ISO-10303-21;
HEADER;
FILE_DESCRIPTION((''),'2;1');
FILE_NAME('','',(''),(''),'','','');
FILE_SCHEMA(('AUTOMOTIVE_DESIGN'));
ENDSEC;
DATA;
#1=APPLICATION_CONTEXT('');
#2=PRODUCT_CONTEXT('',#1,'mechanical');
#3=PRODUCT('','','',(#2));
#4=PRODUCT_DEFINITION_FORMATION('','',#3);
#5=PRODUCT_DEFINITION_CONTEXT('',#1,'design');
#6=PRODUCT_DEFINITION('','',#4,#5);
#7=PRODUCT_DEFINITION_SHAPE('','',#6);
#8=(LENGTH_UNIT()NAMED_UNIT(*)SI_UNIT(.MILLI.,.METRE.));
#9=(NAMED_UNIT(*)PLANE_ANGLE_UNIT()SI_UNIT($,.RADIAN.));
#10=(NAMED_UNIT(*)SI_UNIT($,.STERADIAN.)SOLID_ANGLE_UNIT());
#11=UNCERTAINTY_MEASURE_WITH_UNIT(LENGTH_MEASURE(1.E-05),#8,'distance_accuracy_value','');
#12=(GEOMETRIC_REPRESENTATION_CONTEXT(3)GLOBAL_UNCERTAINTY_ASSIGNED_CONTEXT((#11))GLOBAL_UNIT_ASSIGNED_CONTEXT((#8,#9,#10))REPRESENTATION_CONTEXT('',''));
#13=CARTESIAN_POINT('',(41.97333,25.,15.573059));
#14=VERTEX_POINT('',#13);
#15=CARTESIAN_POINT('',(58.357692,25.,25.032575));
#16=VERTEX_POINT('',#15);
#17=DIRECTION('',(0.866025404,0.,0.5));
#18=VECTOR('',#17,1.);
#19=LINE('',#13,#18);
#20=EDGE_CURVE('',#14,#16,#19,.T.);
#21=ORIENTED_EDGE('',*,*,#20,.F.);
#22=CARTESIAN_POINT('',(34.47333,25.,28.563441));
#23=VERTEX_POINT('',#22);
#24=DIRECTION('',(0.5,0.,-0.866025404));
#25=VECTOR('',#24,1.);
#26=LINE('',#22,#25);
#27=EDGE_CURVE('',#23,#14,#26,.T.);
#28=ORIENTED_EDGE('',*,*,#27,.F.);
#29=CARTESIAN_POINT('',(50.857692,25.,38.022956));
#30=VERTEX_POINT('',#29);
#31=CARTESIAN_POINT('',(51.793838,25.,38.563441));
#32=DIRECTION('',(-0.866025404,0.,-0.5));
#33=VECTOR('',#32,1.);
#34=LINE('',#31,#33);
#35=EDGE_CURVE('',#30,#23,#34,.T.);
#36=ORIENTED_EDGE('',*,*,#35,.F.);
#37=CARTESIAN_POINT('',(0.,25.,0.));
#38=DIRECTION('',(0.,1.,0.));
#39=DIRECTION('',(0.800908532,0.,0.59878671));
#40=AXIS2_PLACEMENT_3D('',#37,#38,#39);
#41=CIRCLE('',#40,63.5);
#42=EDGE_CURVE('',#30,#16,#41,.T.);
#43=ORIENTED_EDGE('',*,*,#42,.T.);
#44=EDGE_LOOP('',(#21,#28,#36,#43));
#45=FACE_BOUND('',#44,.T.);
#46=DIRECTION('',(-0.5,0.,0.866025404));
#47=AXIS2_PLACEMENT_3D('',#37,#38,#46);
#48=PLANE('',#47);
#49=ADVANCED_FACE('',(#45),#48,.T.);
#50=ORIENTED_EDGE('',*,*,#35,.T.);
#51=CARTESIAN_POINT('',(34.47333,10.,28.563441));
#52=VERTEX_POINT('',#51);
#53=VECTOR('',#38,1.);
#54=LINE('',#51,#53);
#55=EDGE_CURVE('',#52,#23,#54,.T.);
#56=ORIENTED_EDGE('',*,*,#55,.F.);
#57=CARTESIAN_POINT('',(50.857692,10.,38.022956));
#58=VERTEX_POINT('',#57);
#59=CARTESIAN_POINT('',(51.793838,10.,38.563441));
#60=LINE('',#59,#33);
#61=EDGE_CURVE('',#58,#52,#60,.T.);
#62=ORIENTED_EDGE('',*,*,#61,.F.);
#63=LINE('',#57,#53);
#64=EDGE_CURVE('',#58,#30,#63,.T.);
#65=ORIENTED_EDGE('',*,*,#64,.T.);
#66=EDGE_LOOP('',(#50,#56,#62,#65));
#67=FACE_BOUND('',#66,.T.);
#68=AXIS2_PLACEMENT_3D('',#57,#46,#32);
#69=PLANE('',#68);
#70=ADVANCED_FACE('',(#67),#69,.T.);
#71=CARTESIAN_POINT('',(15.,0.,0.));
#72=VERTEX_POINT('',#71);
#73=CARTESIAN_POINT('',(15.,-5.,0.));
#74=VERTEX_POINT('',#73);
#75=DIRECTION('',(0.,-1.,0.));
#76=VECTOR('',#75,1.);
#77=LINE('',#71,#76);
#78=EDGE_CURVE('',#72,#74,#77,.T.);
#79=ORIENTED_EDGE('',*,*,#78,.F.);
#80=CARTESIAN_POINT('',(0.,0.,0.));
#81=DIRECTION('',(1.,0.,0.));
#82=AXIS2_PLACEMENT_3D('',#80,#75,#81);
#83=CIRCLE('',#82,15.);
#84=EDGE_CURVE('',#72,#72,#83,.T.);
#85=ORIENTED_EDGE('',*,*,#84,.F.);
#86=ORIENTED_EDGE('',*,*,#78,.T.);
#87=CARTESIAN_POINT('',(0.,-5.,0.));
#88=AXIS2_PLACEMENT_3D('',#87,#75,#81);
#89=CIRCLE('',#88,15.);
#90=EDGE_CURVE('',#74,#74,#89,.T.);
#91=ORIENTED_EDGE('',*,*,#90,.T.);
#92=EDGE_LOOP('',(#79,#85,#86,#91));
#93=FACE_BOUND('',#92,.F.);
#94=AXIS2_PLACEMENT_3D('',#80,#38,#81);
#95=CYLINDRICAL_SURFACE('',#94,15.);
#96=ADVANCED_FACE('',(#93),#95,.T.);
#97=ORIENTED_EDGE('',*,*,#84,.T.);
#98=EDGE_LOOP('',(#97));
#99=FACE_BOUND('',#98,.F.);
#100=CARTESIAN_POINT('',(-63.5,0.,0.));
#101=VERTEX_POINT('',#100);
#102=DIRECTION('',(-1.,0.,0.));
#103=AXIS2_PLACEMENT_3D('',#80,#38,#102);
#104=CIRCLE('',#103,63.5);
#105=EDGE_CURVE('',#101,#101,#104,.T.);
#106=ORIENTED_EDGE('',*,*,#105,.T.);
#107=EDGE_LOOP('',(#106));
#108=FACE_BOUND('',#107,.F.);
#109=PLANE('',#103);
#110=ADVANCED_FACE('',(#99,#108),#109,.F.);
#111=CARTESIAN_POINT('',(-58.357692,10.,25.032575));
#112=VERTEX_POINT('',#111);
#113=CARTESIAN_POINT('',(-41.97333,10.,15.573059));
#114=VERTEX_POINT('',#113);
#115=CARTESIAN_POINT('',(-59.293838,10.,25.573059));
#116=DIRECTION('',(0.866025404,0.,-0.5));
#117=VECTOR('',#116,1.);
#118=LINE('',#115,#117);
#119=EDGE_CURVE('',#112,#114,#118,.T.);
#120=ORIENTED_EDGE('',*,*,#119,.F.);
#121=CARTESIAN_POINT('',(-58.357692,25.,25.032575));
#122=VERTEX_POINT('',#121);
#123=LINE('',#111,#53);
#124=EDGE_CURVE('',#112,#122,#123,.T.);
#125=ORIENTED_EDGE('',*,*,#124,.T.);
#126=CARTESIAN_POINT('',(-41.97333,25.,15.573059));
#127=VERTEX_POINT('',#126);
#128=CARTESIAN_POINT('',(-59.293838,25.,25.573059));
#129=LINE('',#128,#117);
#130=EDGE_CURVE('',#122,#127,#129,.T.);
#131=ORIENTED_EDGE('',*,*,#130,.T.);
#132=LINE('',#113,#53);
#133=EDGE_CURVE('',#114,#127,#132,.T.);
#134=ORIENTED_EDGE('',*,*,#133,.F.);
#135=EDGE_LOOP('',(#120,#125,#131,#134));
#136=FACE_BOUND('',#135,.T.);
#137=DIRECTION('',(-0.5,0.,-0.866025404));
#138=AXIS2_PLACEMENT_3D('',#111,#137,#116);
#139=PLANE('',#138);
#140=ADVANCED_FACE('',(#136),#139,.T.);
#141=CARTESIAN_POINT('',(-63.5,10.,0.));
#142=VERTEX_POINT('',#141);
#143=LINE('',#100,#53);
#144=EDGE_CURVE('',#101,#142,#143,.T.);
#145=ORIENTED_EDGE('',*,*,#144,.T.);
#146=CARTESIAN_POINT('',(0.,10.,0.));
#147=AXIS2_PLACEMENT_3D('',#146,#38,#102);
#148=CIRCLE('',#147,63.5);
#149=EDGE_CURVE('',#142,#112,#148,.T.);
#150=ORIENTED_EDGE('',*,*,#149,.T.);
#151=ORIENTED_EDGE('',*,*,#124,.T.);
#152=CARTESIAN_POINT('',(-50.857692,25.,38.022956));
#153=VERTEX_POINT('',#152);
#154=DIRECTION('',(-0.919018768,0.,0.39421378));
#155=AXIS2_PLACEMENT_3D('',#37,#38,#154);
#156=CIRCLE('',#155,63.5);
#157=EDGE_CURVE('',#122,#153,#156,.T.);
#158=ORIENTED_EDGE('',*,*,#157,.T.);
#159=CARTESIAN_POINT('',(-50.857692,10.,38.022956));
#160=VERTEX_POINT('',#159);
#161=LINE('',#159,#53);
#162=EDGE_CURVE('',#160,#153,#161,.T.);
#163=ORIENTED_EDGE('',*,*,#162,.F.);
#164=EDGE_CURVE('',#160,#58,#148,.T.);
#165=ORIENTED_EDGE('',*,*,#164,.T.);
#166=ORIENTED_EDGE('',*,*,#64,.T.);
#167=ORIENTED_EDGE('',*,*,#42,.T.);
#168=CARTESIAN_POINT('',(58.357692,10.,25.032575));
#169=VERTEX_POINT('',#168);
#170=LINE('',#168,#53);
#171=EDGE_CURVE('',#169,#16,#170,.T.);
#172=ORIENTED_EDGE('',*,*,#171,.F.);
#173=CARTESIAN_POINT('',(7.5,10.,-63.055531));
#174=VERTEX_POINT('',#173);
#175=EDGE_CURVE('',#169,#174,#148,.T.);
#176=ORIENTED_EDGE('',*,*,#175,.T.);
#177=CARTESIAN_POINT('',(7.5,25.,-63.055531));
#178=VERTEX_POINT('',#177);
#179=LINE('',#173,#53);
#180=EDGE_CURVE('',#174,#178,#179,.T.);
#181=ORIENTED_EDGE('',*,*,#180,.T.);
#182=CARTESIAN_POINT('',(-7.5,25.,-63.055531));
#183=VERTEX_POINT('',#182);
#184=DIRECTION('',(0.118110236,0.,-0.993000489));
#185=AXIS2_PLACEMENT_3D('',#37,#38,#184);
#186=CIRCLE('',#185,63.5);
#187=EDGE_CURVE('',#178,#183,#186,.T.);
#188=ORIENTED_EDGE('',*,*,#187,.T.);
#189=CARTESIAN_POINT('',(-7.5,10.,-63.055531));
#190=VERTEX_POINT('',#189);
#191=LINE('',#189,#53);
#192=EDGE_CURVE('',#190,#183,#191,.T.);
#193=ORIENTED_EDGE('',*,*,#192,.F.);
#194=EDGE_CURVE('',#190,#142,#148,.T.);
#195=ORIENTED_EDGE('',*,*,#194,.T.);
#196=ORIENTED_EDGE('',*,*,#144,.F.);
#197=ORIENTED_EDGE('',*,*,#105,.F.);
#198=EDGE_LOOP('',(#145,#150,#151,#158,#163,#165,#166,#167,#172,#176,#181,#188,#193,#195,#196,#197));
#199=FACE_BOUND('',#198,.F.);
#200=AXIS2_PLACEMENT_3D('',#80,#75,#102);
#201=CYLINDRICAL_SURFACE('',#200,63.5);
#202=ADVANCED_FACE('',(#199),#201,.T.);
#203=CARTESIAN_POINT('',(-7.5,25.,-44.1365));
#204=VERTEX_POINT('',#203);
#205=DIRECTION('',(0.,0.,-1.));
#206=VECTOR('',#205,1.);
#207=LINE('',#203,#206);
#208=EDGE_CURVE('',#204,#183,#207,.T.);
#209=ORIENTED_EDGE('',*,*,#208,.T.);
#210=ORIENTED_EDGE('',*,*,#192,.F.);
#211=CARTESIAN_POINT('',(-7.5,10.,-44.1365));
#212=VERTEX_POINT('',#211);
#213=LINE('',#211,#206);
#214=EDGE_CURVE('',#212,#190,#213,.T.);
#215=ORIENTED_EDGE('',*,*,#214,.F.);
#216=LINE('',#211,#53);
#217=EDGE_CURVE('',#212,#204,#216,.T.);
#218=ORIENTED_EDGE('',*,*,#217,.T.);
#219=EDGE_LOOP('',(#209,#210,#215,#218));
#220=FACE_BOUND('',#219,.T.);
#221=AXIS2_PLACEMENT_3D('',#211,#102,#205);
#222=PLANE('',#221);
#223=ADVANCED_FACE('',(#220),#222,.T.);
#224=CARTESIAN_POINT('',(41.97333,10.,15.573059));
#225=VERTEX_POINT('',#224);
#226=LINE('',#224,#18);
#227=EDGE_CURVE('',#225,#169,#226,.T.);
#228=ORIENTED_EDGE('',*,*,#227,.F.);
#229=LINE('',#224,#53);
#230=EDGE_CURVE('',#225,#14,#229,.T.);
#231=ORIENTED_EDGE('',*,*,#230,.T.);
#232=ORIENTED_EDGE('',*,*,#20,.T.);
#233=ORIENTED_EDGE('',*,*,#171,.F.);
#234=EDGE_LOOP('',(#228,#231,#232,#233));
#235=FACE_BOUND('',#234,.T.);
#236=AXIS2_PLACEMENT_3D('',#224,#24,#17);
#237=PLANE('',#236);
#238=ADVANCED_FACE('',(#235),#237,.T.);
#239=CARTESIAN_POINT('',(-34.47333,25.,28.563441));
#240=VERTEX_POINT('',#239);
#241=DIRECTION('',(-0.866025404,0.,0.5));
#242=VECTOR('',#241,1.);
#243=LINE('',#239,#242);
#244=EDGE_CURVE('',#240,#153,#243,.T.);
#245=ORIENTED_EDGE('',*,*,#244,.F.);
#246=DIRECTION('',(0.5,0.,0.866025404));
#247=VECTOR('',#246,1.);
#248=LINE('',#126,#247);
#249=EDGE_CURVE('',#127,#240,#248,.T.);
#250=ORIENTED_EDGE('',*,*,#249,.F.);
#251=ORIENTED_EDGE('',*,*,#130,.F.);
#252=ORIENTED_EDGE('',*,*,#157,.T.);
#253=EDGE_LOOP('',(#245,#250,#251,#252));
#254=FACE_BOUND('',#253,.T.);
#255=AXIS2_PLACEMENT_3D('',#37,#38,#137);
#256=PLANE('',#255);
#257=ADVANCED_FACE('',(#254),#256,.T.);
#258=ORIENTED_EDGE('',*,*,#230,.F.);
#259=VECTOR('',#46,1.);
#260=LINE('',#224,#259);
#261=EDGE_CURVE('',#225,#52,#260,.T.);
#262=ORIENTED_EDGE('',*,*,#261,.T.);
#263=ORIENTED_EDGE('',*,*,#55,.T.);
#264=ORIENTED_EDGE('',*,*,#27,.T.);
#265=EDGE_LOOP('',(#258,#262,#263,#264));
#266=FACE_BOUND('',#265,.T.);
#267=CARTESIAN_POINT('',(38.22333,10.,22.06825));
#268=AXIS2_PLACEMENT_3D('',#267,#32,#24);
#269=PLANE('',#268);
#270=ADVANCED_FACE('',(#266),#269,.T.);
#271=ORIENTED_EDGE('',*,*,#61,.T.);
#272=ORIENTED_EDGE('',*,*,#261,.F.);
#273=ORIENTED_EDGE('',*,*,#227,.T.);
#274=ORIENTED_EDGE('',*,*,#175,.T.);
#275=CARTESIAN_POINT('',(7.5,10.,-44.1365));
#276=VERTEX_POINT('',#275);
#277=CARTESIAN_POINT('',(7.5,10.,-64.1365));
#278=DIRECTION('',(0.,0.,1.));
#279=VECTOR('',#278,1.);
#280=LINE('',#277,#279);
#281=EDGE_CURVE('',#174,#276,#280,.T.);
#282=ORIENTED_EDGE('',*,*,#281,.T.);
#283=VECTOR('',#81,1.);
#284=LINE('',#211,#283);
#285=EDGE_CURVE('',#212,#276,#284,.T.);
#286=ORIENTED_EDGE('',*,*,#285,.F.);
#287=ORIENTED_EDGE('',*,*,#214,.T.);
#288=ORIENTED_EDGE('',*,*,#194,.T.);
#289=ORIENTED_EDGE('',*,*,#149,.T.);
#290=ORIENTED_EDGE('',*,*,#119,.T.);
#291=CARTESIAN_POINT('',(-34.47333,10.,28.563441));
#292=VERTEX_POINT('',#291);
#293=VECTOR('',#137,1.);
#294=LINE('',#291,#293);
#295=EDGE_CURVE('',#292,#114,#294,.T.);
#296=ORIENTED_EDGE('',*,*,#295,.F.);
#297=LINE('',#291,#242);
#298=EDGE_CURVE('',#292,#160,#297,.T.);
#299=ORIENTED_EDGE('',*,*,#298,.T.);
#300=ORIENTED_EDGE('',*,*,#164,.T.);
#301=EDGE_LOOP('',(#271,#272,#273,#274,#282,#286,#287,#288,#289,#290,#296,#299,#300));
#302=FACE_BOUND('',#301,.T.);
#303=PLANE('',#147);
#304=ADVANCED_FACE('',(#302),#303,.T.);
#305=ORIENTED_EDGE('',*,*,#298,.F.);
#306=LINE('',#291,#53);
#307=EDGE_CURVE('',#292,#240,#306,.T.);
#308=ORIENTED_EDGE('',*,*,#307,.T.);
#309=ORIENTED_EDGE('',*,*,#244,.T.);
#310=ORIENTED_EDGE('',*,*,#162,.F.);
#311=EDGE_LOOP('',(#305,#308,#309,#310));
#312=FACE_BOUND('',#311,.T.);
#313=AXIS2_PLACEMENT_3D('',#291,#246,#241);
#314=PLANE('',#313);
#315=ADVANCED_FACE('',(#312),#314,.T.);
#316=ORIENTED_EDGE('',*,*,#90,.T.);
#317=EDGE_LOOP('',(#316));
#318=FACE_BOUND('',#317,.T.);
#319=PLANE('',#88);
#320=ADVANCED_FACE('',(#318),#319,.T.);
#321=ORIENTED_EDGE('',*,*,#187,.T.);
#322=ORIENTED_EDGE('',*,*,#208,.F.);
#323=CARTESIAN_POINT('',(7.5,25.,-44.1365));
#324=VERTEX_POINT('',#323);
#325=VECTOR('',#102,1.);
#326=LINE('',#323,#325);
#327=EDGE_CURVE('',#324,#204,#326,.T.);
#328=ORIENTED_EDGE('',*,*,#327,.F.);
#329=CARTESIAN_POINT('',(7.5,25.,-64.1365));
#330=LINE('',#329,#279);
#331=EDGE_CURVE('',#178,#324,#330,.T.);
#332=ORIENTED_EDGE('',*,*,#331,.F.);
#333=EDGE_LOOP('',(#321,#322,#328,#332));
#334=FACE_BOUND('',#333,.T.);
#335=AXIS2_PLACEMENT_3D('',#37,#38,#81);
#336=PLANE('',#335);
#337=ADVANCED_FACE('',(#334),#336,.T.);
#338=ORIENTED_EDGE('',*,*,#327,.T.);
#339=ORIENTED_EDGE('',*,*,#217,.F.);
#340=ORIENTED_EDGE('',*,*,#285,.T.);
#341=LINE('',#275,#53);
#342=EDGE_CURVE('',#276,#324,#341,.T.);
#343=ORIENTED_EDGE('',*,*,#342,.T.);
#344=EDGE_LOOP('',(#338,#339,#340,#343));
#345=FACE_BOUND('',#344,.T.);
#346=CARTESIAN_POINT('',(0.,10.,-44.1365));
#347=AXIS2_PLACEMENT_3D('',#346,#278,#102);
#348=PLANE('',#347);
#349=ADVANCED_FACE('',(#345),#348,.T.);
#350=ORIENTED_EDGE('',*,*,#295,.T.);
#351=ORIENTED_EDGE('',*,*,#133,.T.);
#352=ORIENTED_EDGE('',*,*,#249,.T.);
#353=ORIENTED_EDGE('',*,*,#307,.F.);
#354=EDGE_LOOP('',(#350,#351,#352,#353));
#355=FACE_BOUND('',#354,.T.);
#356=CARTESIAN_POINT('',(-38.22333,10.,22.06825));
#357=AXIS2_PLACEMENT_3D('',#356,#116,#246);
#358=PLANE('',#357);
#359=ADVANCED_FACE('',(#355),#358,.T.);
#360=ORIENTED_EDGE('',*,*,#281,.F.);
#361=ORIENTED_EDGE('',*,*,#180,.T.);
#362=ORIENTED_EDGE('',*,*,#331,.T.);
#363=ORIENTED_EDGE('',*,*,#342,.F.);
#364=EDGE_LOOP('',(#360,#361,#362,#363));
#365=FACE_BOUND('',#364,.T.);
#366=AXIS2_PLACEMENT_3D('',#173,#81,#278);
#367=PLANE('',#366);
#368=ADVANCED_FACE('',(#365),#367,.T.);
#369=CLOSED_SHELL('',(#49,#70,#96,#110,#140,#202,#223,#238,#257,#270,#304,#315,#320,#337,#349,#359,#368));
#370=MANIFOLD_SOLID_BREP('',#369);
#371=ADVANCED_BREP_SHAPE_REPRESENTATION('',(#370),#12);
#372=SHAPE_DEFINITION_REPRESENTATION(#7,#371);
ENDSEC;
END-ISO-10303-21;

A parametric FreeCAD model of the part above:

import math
import FreeCAD as App
import Part
import Sketcher
from FreeCAD import Vector
Q = App.Units.Quantity

doc = App.newDocument("Part")
body = doc.addObject("PartDesign::Body", "Body")

sketch1 = doc.addObject("Sketcher::SketchObject", "Sketch")
body.addObject(sketch1)
sketch1.AttachmentSupport = (doc.XZ_Plane, [""])
sketch1.MapMode = "FlatFace"
sketch1.addGeometry(Part.Circle(Vector(0, 0, 0), Vector(0, 0, 1), 63.5), False)
sketch1.addConstraint([
    Sketcher.Constraint("Coincident", 0, 3, -1, 1),
    Sketcher.Constraint("Diameter", 0, Q("127 mm")),
])
pad1 = doc.addObject("PartDesign::Pad", "Pad")
body.addObject(pad1)
pad1.Profile = sketch1
pad1.Length = 10
pad1.Reversed = True

sketch2 = doc.addObject("Sketcher::SketchObject", "Sketch001")
body.addObject(sketch2)
sketch2.AttachmentSupport = (doc.XZ_Plane, [""])
sketch2.MapMode = "FlatFace"
sketch2.AttachmentOffset = App.Placement(Vector(0, 0, -10), App.Rotation())
sketch2.addGeometry([
    Part.LineSegment(Vector(-7.5, -44.1365, 0), Vector(7.5, -44.1365, 0)),
    Part.LineSegment(Vector(7.5, -44.1365, 0), Vector(7.5, -63.055531, 0)),
    Part.ArcOfCircle(Part.Circle(Vector(0, 0, 0), Vector(0, 0, 1), 63.5), math.radians(-96.783051), math.radians(-83.216949)),
    Part.LineSegment(Vector(-7.5, -63.055531, 0), Vector(-7.5, -44.1365, 0)),
], False)
sketch2.addConstraint([
    Sketcher.Constraint("Coincident", 0, 2, 1, 1),
    Sketcher.Constraint("Coincident", 1, 2, 2, 2),
    Sketcher.Constraint("Coincident", 2, 1, 3, 1),
    Sketcher.Constraint("Coincident", 3, 2, 0, 1),
    Sketcher.Constraint("Horizontal", 0),
    Sketcher.Constraint("Vertical", 1),
    Sketcher.Constraint("Vertical", 3),
    Sketcher.Constraint("Coincident", 2, 3, -1, 1),
    Sketcher.Constraint("Horizontal", 1, 2, 2, 1),
    Sketcher.Constraint("DistanceX", 0, 1, 0, 2, Q("15 mm")),
    Sketcher.Constraint("Radius", 2, Q("63.5 mm")),
    Sketcher.Constraint("DistanceY", 1, 2, 1, 1, Q("18.919 mm")),
])
pad2 = doc.addObject("PartDesign::Pad", "Pad001")
body.addObject(pad2)
pad2.Profile = sketch2
pad2.Length = 15
pad2.Reversed = True
doc.recompute()

polarpattern = doc.addObject("PartDesign::PolarPattern", "PolarPattern")
body.addObject(polarpattern)
polarpattern.Originals = [pad2]
polarpattern.Axis = (doc.Y_Axis, [""])
polarpattern.Angle = 360
polarpattern.Occurrences = 3
body.Tip = polarpattern

sketch3 = doc.addObject("Sketcher::SketchObject", "Sketch002")
body.addObject(sketch3)
sketch3.AttachmentSupport = (doc.XZ_Plane, [""])
sketch3.MapMode = "FlatFace"
sketch3.addGeometry(Part.Circle(Vector(0, 0, 0), Vector(0, 0, 1), 15), False)
sketch3.addConstraint([
    Sketcher.Constraint("Coincident", 0, 3, -1, 1),
    Sketcher.Constraint("Diameter", 0, Q("30 mm")),
])
pad3 = doc.addObject("PartDesign::Pad", "Pad002")
body.addObject(pad3)
pad3.Profile = sketch3
pad3.Length = 5

doc.recompute()
